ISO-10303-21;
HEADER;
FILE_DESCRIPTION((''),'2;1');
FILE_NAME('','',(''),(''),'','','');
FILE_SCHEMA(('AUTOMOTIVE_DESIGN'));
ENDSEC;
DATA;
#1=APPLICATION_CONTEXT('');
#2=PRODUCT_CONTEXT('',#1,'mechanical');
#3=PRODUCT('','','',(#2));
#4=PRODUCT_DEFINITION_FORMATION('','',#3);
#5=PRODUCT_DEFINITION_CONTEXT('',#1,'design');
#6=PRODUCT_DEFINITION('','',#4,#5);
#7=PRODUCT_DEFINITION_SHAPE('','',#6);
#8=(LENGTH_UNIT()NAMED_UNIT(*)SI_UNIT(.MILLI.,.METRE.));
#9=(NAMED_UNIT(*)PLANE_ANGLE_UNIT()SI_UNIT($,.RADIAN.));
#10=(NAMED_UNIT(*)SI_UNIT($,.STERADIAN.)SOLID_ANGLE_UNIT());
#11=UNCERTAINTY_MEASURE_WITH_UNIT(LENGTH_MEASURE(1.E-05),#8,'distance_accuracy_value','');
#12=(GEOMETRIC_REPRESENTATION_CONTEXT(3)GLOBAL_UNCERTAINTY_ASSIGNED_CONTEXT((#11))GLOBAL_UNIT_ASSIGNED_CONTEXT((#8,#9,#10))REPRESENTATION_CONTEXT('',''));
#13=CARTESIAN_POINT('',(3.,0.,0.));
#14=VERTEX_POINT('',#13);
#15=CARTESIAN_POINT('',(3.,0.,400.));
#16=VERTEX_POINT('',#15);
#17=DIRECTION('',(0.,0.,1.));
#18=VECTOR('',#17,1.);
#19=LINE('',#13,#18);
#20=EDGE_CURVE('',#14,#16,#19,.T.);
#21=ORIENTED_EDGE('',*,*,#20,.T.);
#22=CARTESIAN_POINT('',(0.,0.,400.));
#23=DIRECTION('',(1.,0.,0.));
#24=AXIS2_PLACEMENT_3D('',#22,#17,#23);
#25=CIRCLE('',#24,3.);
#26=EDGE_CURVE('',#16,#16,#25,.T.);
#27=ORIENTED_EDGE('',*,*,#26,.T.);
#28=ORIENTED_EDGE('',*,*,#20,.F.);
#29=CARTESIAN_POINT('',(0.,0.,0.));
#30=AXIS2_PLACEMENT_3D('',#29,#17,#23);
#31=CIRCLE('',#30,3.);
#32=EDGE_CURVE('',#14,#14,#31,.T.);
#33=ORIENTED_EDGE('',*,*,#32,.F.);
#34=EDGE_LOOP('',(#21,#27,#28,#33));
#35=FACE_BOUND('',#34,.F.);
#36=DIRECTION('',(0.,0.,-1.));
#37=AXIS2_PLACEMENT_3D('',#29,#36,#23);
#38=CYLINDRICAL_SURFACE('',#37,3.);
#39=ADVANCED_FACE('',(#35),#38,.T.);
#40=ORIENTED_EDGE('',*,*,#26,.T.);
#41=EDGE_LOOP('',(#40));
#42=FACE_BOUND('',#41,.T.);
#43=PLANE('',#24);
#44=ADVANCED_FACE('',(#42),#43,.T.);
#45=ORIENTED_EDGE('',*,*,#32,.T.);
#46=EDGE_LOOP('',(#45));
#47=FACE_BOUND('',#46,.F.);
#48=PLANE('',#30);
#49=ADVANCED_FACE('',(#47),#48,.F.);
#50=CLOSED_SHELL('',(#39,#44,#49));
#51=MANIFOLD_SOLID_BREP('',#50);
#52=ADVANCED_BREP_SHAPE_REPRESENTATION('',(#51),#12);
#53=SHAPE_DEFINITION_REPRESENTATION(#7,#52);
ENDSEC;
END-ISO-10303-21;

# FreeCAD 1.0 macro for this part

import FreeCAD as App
import Part
import Sketcher
from FreeCAD import Vector

doc = App.newDocument("Part")
params = doc.addObject("Spreadsheet::Sheet", "Params")
for row, (alias, value) in enumerate([
    ("sketch1_diameter", "6 mm"),
    ("pad1_length", "400 mm"),
], start=1):
    params.set(f"A{row}", alias)
    params.set(f"B{row}", "=" + value)
    params.setAlias(f"B{row}", alias)

body = doc.addObject("PartDesign::Body", "Body")

sketch1 = body.newObject("Sketcher::SketchObject", "Sketch")
sketch1.AttachmentSupport = (doc.getObject("XY_Plane"), [""])
sketch1.MapMode = "FlatFace"
sketch1.addGeometry(Part.Circle(Vector(0, 0, 0), Vector(0, 0, 1), 3), False)
sketch1.addConstraint([
    Sketcher.Constraint("Coincident", 0, 3, -1, 1),
    Sketcher.Constraint("Diameter", 0, 6.0),
])
sketch1.setExpression("Constraints[1]", "Params.sketch1_diameter")
pad1 = body.newObject("PartDesign::Pad", "Pad")
pad1.Profile = sketch1
pad1.setExpression("Length", "Params.pad1_length")

doc.recompute()
